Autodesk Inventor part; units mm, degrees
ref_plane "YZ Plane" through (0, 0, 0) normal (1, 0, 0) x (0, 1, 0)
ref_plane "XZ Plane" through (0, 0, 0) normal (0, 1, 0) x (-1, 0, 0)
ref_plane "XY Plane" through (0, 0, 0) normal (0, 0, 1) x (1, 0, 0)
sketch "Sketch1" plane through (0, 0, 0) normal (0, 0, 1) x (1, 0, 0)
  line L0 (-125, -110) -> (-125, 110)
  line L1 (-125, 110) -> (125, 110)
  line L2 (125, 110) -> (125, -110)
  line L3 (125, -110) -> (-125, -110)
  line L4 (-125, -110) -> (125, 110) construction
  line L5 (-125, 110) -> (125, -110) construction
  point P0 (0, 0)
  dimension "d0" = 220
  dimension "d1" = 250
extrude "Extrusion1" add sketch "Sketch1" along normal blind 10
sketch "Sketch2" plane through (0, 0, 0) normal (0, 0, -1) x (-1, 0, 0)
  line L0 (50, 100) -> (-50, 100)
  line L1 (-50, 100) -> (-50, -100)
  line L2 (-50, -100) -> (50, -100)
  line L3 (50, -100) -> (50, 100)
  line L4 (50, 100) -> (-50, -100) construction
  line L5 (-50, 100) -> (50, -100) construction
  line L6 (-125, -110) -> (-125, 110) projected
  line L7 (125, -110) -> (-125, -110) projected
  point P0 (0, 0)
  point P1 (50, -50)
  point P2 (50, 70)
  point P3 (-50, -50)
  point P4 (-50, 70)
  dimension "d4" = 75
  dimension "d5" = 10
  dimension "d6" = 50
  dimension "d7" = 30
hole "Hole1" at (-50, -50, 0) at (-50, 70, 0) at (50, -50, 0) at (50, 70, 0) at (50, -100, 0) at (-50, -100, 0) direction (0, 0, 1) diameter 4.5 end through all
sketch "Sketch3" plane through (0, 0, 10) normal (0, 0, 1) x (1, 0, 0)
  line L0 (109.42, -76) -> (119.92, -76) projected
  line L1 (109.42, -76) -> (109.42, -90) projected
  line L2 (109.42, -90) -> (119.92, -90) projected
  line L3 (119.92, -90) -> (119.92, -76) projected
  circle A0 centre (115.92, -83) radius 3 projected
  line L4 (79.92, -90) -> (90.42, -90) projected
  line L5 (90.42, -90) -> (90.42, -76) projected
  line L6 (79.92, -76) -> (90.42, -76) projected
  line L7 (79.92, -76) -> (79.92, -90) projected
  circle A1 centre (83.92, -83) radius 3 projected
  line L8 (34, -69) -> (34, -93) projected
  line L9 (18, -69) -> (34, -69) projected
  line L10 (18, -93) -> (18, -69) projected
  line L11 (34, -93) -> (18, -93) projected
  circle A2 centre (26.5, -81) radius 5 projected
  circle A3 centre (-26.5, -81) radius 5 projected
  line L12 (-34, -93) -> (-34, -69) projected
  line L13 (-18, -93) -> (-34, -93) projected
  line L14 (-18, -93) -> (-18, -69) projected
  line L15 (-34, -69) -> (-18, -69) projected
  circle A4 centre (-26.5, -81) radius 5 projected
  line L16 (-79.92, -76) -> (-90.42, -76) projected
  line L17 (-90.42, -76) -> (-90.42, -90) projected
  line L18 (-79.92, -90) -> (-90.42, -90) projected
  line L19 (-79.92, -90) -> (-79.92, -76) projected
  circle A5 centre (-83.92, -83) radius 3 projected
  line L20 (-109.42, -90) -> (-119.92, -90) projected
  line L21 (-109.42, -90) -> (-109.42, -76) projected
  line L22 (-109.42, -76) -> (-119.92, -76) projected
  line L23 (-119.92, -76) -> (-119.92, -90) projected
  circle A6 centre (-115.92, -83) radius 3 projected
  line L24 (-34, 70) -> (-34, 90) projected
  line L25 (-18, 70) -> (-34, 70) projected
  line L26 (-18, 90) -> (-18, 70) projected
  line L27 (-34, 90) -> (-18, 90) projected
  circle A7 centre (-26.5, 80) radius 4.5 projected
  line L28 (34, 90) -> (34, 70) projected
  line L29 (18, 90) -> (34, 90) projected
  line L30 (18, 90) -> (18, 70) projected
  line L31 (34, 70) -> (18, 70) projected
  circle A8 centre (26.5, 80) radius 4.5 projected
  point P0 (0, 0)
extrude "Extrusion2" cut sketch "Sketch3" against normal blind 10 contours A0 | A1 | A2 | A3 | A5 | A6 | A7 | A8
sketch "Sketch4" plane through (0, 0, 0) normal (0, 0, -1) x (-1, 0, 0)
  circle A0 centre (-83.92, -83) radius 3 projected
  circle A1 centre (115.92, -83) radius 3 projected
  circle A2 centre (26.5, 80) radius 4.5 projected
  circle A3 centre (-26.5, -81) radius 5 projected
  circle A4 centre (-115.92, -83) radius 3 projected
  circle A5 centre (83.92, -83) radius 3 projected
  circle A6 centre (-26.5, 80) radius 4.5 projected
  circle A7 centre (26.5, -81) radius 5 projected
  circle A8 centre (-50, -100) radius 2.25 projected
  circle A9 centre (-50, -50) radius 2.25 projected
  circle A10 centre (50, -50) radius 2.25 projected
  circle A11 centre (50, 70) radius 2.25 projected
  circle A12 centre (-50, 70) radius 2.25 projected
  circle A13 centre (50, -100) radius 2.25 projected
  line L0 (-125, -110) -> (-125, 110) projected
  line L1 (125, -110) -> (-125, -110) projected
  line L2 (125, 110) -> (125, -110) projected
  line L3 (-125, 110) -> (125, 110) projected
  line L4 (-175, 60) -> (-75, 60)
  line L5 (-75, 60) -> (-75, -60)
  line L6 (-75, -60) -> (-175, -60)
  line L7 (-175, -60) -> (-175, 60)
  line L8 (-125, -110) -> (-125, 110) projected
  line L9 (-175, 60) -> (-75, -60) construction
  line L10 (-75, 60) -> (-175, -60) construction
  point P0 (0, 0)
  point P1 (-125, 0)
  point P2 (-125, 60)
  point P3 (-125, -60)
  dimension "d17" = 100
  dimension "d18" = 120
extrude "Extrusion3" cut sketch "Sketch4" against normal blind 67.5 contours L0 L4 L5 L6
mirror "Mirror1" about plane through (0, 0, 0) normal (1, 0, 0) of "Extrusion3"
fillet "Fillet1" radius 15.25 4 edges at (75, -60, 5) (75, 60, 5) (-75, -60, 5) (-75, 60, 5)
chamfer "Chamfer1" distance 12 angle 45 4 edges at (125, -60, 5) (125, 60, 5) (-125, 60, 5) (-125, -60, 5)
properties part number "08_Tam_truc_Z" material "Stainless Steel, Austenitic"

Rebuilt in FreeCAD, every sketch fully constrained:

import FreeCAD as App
import Part
import Sketcher
Q = App.Units.Quantity


def edges_at(feature, points):
    """Names of the edges that pass closest to the given points."""
    edges = feature.Shape.Edges
    near = lambda p: min(range(len(edges)), key=lambda i: edges[i].distToShape(Part.Vertex(*p))[0])
    return sorted({f"Edge{near(p) + 1}" for p in points})


def add_polygon(sketch, points):
    """Adds a closed chain of lines whose ends are joined by coincident constraints."""
    first, n = sketch.GeometryCount, len(points)
    for a, b in zip(points, points[1:] + points[:1]):
        sketch.addGeometry(Part.LineSegment(App.Vector(*a, 0), App.Vector(*b, 0)), False)
    for i in range(n):
        sketch.addConstraint(Sketcher.Constraint("Coincident", first + i, 2, first + (i + 1) % n, 1))

doc = App.newDocument("Part")
body = doc.addObject("PartDesign::Body", "Body")

sketch1 = body.newObject("Sketcher::SketchObject", "Sketch")
sketch1.AttachmentSupport = (doc.getObject("XY_Plane"), [""])
sketch1.MapMode = "FlatFace"
add_polygon(sketch1, [(-125, 110), (-125, -110), (125, -110), (125, 110)])
sketch1.addConstraint(Sketcher.Constraint("Vertical", 0))
sketch1.addConstraint(Sketcher.Constraint("Horizontal", 1))
sketch1.addConstraint(Sketcher.Constraint("Vertical", 2))
sketch1.addConstraint(Sketcher.Constraint("Horizontal", 3))
sketch1.addConstraint(Sketcher.Constraint("Symmetric", 0, 2, 2, 2, -1, 1))
sketch1.addConstraint(Sketcher.Constraint("DistanceX", 1, 1, 1, 2, Q("250 mm")))
sketch1.addConstraint(Sketcher.Constraint("DistanceY", 0, 2, 0, 1, Q("220 mm")))
pad1 = body.newObject("PartDesign::Pad", "Pad")
pad1.Profile = sketch1
pad1.Length = 10

sketch2 = body.newObject("Sketcher::SketchObject", "Sketch001")
sketch2.AttachmentSupport = (doc.getObject("XY_Plane"), [""])
sketch2.MapMode = "FlatFace"
sketch2.addGeometry(Part.Circle(App.Vector(-50, -50, 0), App.Vector(0, 0, 1), 2.25), False)
sketch2.addGeometry(Part.Circle(App.Vector(-50, 70, 0), App.Vector(0, 0, 1), 2.25), False)
sketch2.addGeometry(Part.Circle(App.Vector(50, -50, 0), App.Vector(0, 0, 1), 2.25), False)
sketch2.addGeometry(Part.Circle(App.Vector(50, 70, 0), App.Vector(0, 0, 1), 2.25), False)
sketch2.addGeometry(Part.Circle(App.Vector(50, -100, 0), App.Vector(0, 0, 1), 2.25), False)
sketch2.addGeometry(Part.Circle(App.Vector(-50, -100, 0), App.Vector(0, 0, 1), 2.25), False)
sketch2.addConstraint(Sketcher.Constraint("Equal", 0, 1))
sketch2.addConstraint(Sketcher.Constraint("Equal", 1, 2))
sketch2.addConstraint(Sketcher.Constraint("Equal", 2, 3))
sketch2.addConstraint(Sketcher.Constraint("Equal", 3, 4))
sketch2.addConstraint(Sketcher.Constraint("Equal", 4, 5))
sketch2.addConstraint(Sketcher.Constraint("Symmetric", 0, 3, 2, 3, -2))
sketch2.addConstraint(Sketcher.Constraint("Symmetric", 1, 3, 3, 3, -2))
sketch2.addConstraint(Sketcher.Constraint("Symmetric", 4, 3, 5, 3, -2))
sketch2.addConstraint(Sketcher.Constraint("Vertical", 0, 3, 1, 3))
sketch2.addConstraint(Sketcher.Constraint("Vertical", 3, 3, 4, 3))
sketch2.addConstraint(Sketcher.Constraint("Diameter", 0, Q("4.5 mm")))
sketch2.addConstraint(Sketcher.Constraint("DistanceX", 0, 3, -1, 1, Q("50 mm")))
sketch2.addConstraint(Sketcher.Constraint("DistanceY", 0, 3, -1, 1, Q("50 mm")))
sketch2.addConstraint(Sketcher.Constraint("DistanceY", -1, 1, 1, 3, Q("70 mm")))
sketch2.addConstraint(Sketcher.Constraint("DistanceY", 4, 3, -1, 1, Q("100 mm")))
doc.recompute()
hole = body.newObject("PartDesign::Hole", "Hole")
hole.Profile = sketch2
hole.ThreadType = "None"
hole.Diameter = 4.5
hole.DepthType = "ThroughAll"
hole.Reversed = True

sketch3 = body.newObject("Sketcher::SketchObject", "Sketch002")
sketch3.AttachmentSupport = (doc.getObject("XY_Plane"), [""])
sketch3.MapMode = "FlatFace"
sketch3.AttachmentOffset = App.Placement(App.Vector(0, 0, 10), App.Rotation())
sketch3.addGeometry(Part.Circle(App.Vector(115.92, -83, 0), App.Vector(0, 0, 1), 3), False)
sketch3.addGeometry(Part.Circle(App.Vector(83.92, -83, 0), App.Vector(0, 0, 1), 3), False)
sketch3.addGeometry(Part.Circle(App.Vector(26.5, -81, 0), App.Vector(0, 0, 1), 5), False)
sketch3.addGeometry(Part.Circle(App.Vector(-26.5, -81, 0), App.Vector(0, 0, 1), 5), False)
sketch3.addGeometry(Part.Circle(App.Vector(-83.92, -83, 0), App.Vector(0, 0, 1), 3), False)
sketch3.addGeometry(Part.Circle(App.Vector(-115.92, -83, 0), App.Vector(0, 0, 1), 3), False)
sketch3.addGeometry(Part.Circle(App.Vector(-26.5, 80, 0), App.Vector(0, 0, 1), 4.5), False)
sketch3.addGeometry(Part.Circle(App.Vector(26.5, 80, 0), App.Vector(0, 0, 1), 4.5), False)
sketch3.addConstraint(Sketcher.Constraint("Equal", 0, 1))
sketch3.addConstraint(Sketcher.Constraint("Equal", 2, 3))
sketch3.addConstraint(Sketcher.Constraint("Equal", 1, 4))
sketch3.addConstraint(Sketcher.Constraint("Equal", 4, 5))
sketch3.addConstraint(Sketcher.Constraint("Equal", 6, 7))
sketch3.addConstraint(Sketcher.Constraint("Symmetric", 2, 3, 3, 3, -2))
sketch3.addConstraint(Sketcher.Constraint("Symmetric", 1, 3, 4, 3, -2))
sketch3.addConstraint(Sketcher.Constraint("Symmetric", 0, 3, 5, 3, -2))
sketch3.addConstraint(Sketcher.Constraint("Symmetric", 6, 3, 7, 3, -2))
sketch3.addConstraint(Sketcher.Constraint("Horizontal", 0, 3, 1, 3))
sketch3.addConstraint(Sketcher.Constraint("Vertical", 3, 3, 6, 3))
sketch3.addConstraint(Sketcher.Constraint("Diameter", 0, Q("6 mm")))
sketch3.addConstraint(Sketcher.Constraint("Diameter", 2, Q("10 mm")))
sketch3.addConstraint(Sketcher.Constraint("Diameter", 6, Q("9 mm")))
sketch3.addConstraint(Sketcher.Constraint("DistanceY", 0, 3, -1, 1, Q("83 mm")))
sketch3.addConstraint(Sketcher.Constraint("DistanceY", 2, 3, -1, 1, Q("81 mm")))
sketch3.addConstraint(Sketcher.Constraint("DistanceY", -1, 1, 6, 3, Q("80 mm")))
sketch3.addConstraint(Sketcher.Constraint("DistanceX", 1, 3, 0, 3, Q("32 mm")))
sketch3.addConstraint(Sketcher.Constraint("DistanceX", 3, 3, 2, 3, Q("53 mm")))
sketch3.addConstraint(Sketcher.Constraint("DistanceX", -1, 1, 0, 3, Q("115.92 mm")))
pocket1 = body.newObject("PartDesign::Pocket", "Pocket")
pocket1.Profile = sketch3
pocket1.Length = 10

sketch4 = body.newObject("Sketcher::SketchObject", "Sketch003")
sketch4.AttachmentSupport = (doc.getObject("XY_Plane"), [""])
sketch4.MapMode = "FlatFace"
add_polygon(sketch4, [(125, 60), (125, -60), (75, -60), (75, 60)])
sketch4.addConstraint(Sketcher.Constraint("Vertical", 0))
sketch4.addConstraint(Sketcher.Constraint("Horizontal", 1))
sketch4.addConstraint(Sketcher.Constraint("Vertical", 2))
sketch4.addConstraint(Sketcher.Constraint("Horizontal", 3))
sketch4.addConstraint(Sketcher.Constraint("DistanceY", 0, 2, 0, 1, Q("120 mm")))
sketch4.addConstraint(Sketcher.Constraint("DistanceX", 1, 2, 1, 1, Q("50 mm")))
sketch4.addConstraint(Sketcher.Constraint("DistanceX", -1, 1, 0, 2, Q("125 mm")))
sketch4.addConstraint(Sketcher.Constraint("DistanceY", 0, 2, -1, 1, Q("60 mm")))
pocket2 = body.newObject("PartDesign::Pocket", "Pocket001")
pocket2.Profile = sketch4
pocket2.Length = 67.5
pocket2.Reversed = True
doc.recompute()

mirrored = body.newObject("PartDesign::Mirrored", "Mirrored")
mirrored.Originals = [pocket2]
mirrored.MirrorPlane = (doc.getObject("YZ_Plane"), [""])
body.Tip = mirrored
doc.recompute()

fillet = body.newObject("PartDesign::Fillet", "Fillet")
fillet.Base = (mirrored, edges_at(mirrored, [
    (75, -60, 5),
    (75, 60, 5),
    (-75, -60, 5),
    (-75, 60, 5),
]))
fillet.Radius = 15.25
doc.recompute()

chamfer = body.newObject("PartDesign::Chamfer", "Chamfer")
chamfer.Base = (fillet, edges_at(fillet, [
    (125, -60, 5),
    (125, 60, 5),
    (-125, 60, 5),
    (-125, -60, 5),
]))
chamfer.Size = 12

doc.recompute()
